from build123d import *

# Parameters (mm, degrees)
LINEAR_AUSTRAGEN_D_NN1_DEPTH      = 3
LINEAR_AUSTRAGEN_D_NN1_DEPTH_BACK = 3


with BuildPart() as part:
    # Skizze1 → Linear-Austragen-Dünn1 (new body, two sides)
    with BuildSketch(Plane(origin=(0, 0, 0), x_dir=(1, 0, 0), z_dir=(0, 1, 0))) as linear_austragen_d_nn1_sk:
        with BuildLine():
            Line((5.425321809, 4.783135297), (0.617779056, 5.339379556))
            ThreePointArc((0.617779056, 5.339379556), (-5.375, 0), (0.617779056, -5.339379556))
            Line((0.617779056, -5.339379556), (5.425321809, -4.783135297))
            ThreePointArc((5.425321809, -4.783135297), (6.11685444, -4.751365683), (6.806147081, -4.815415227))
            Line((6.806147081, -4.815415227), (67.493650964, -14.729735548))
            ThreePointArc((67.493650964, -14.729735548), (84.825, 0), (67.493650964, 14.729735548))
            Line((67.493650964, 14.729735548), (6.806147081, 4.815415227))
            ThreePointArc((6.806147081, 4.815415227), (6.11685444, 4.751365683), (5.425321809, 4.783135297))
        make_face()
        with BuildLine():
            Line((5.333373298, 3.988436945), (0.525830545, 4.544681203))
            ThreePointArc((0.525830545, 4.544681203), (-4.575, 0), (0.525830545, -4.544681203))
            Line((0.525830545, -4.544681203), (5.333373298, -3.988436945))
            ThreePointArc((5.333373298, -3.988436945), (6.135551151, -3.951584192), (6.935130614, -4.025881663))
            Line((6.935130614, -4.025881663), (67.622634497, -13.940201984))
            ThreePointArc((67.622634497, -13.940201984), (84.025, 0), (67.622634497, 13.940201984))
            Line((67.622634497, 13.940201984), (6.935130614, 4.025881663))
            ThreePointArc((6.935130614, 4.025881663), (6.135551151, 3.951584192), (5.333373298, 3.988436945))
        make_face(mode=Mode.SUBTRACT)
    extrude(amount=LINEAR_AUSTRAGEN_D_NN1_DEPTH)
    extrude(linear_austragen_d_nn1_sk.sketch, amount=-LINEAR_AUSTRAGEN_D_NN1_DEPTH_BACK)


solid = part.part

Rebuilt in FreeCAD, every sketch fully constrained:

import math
import FreeCAD as App
import Part
import Sketcher
Q = App.Units.Quantity

doc = App.newDocument("Part")
body = doc.addObject("PartDesign::Body", "Body")

# Sketch on XZ plane
sketch1 = doc.addObject("Sketcher::SketchObject", "Sketch")
body.addObject(sketch1)
sketch1.AttachmentSupport = (doc.XZ_Plane, [""])
sketch1.MapMode = "FlatFace"
sketch1.addGeometry([
    Part.LineSegment(App.Vector(5.425322, -4.783135, 0), App.Vector(0.617779, -5.33938, 0)),  # 0
    Part.ArcOfCircle(Part.Circle(App.Vector(0, 0, 0), App.Vector(0, 0, 1), 5.375), math.radians(83.400087), math.radians(276.599913)),  # 1
    Part.LineSegment(App.Vector(0.617779, 5.33938, 0), App.Vector(5.425322, 4.783135, 0)),  # 2
    Part.ArcOfCircle(Part.Circle(App.Vector(6, 9.75, 0), App.Vector(0, 0, 1), 5), math.radians(-96.599913), math.radians(-80.721737)),  # 3
    Part.LineSegment(App.Vector(6.806147, 4.815415, 0), App.Vector(67.493651, 14.729736, 0)),  # 4
    Part.ArcOfCircle(Part.Circle(App.Vector(69.9, 0, 0), App.Vector(0, 0, 1), 14.925), math.radians(-99.278263), math.radians(99.278263)),  # 5
    Part.LineSegment(App.Vector(67.493651, -14.729736, 0), App.Vector(6.806147, -4.815415, 0)),  # 6
    Part.ArcOfCircle(Part.Circle(App.Vector(6, -9.75, 0), App.Vector(0, 0, 1), 5), math.radians(80.721737), math.radians(96.599913)),  # 7
    Part.LineSegment(App.Vector(0.525831, -4.544681, 0), App.Vector(5.333373, -3.988437, 0)),  # 8
    Part.ArcOfCircle(Part.Circle(App.Vector(6, -9.75, 0), App.Vector(0, 0, 1), 5.8), math.radians(80.721737), math.radians(96.599913)),  # 9
    Part.LineSegment(App.Vector(6.935131, -4.025882, 0), App.Vector(67.622634, -13.940202, 0)),  # 10
    Part.ArcOfCircle(Part.Circle(App.Vector(69.9, 0, 0), App.Vector(0, 0, 1), 14.125), math.radians(-99.278263), math.radians(99.278263)),  # 11
    Part.LineSegment(App.Vector(67.622634, 13.940202, 0), App.Vector(6.935131, 4.025882, 0)),  # 12
    Part.ArcOfCircle(Part.Circle(App.Vector(6, 9.75, 0), App.Vector(0, 0, 1), 5.8), math.radians(-96.599913), math.radians(-80.721737)),  # 13
    Part.LineSegment(App.Vector(5.333373, 3.988437, 0), App.Vector(0.525831, 4.544681, 0)),  # 14
    Part.ArcOfCircle(Part.Circle(App.Vector(0, 0, 0), App.Vector(0, 0, 1), 4.575), math.radians(83.400087), math.radians(276.599913)),  # 15
], False)
sketch1.addConstraint([
    Sketcher.Constraint("Tangent", 0, 2, 1, 2),
    Sketcher.Constraint("Tangent", 1, 1, 2, 1),
    Sketcher.Constraint("Tangent", 2, 2, 3, 1),
    Sketcher.Constraint("Tangent", 3, 2, 4, 1),
    Sketcher.Constraint("Tangent", 4, 2, 5, 2),
    Sketcher.Constraint("Tangent", 5, 1, 6, 1),
    Sketcher.Constraint("Tangent", 6, 2, 7, 1),
    Sketcher.Constraint("Tangent", 7, 2, 0, 1),
    Sketcher.Constraint("Tangent", 8, 2, 9, 2),
    Sketcher.Constraint("Tangent", 9, 1, 10, 1),
    Sketcher.Constraint("Tangent", 10, 2, 11, 1),
    Sketcher.Constraint("Tangent", 11, 2, 12, 1),
    Sketcher.Constraint("Tangent", 12, 2, 13, 2),
    Sketcher.Constraint("Tangent", 13, 1, 14, 1),
    Sketcher.Constraint("Tangent", 14, 2, 15, 1),
    Sketcher.Constraint("Tangent", 15, 2, 8, 1),
    Sketcher.Constraint("Coincident", 1, 3, -1, 1),
    Sketcher.Constraint("Coincident", 15, 3, -1, 1),
    Sketcher.Constraint("Coincident", 9, 3, 7, 3),
    Sketcher.Constraint("Coincident", 11, 3, 5, 3),
    Sketcher.Constraint("Coincident", 13, 3, 3, 3),
    Sketcher.Constraint("Equal", 3, 7),
    Sketcher.Constraint("Equal", 9, 13),
    Sketcher.Constraint("Symmetric", 3, 3, 7, 3, -1),
    Sketcher.Constraint("PointOnObject", 5, 3, -1),
    Sketcher.Constraint("Parallel", 0, 8),
    Sketcher.Constraint("Parallel", 6, 10),
    Sketcher.Constraint("Radius", 3, Q("5 mm")),
    Sketcher.Constraint("Radius", 9, Q("5.8 mm")),
    Sketcher.Constraint("DistanceX", -1, 1, 3, 3, Q("6 mm")),
    Sketcher.Constraint("Radius", 1, Q("5.375 mm")),
    Sketcher.Constraint("Radius", 5, Q("14.925 mm")),
    Sketcher.Constraint("DistanceX", -1, 1, 5, 3, Q("69.9 mm")),
    Sketcher.Constraint("DistanceY", 7, 3, 3, 3, Q("19.5 mm")),
])
pad1 = doc.addObject("PartDesign::Pad", "Pad")
body.addObject(pad1)
pad1.Profile = sketch1
pad1.Type = "TwoLengths"
pad1.Length = 3
pad1.Length2 = 3
pad1.Reversed = True

doc.recompute()
